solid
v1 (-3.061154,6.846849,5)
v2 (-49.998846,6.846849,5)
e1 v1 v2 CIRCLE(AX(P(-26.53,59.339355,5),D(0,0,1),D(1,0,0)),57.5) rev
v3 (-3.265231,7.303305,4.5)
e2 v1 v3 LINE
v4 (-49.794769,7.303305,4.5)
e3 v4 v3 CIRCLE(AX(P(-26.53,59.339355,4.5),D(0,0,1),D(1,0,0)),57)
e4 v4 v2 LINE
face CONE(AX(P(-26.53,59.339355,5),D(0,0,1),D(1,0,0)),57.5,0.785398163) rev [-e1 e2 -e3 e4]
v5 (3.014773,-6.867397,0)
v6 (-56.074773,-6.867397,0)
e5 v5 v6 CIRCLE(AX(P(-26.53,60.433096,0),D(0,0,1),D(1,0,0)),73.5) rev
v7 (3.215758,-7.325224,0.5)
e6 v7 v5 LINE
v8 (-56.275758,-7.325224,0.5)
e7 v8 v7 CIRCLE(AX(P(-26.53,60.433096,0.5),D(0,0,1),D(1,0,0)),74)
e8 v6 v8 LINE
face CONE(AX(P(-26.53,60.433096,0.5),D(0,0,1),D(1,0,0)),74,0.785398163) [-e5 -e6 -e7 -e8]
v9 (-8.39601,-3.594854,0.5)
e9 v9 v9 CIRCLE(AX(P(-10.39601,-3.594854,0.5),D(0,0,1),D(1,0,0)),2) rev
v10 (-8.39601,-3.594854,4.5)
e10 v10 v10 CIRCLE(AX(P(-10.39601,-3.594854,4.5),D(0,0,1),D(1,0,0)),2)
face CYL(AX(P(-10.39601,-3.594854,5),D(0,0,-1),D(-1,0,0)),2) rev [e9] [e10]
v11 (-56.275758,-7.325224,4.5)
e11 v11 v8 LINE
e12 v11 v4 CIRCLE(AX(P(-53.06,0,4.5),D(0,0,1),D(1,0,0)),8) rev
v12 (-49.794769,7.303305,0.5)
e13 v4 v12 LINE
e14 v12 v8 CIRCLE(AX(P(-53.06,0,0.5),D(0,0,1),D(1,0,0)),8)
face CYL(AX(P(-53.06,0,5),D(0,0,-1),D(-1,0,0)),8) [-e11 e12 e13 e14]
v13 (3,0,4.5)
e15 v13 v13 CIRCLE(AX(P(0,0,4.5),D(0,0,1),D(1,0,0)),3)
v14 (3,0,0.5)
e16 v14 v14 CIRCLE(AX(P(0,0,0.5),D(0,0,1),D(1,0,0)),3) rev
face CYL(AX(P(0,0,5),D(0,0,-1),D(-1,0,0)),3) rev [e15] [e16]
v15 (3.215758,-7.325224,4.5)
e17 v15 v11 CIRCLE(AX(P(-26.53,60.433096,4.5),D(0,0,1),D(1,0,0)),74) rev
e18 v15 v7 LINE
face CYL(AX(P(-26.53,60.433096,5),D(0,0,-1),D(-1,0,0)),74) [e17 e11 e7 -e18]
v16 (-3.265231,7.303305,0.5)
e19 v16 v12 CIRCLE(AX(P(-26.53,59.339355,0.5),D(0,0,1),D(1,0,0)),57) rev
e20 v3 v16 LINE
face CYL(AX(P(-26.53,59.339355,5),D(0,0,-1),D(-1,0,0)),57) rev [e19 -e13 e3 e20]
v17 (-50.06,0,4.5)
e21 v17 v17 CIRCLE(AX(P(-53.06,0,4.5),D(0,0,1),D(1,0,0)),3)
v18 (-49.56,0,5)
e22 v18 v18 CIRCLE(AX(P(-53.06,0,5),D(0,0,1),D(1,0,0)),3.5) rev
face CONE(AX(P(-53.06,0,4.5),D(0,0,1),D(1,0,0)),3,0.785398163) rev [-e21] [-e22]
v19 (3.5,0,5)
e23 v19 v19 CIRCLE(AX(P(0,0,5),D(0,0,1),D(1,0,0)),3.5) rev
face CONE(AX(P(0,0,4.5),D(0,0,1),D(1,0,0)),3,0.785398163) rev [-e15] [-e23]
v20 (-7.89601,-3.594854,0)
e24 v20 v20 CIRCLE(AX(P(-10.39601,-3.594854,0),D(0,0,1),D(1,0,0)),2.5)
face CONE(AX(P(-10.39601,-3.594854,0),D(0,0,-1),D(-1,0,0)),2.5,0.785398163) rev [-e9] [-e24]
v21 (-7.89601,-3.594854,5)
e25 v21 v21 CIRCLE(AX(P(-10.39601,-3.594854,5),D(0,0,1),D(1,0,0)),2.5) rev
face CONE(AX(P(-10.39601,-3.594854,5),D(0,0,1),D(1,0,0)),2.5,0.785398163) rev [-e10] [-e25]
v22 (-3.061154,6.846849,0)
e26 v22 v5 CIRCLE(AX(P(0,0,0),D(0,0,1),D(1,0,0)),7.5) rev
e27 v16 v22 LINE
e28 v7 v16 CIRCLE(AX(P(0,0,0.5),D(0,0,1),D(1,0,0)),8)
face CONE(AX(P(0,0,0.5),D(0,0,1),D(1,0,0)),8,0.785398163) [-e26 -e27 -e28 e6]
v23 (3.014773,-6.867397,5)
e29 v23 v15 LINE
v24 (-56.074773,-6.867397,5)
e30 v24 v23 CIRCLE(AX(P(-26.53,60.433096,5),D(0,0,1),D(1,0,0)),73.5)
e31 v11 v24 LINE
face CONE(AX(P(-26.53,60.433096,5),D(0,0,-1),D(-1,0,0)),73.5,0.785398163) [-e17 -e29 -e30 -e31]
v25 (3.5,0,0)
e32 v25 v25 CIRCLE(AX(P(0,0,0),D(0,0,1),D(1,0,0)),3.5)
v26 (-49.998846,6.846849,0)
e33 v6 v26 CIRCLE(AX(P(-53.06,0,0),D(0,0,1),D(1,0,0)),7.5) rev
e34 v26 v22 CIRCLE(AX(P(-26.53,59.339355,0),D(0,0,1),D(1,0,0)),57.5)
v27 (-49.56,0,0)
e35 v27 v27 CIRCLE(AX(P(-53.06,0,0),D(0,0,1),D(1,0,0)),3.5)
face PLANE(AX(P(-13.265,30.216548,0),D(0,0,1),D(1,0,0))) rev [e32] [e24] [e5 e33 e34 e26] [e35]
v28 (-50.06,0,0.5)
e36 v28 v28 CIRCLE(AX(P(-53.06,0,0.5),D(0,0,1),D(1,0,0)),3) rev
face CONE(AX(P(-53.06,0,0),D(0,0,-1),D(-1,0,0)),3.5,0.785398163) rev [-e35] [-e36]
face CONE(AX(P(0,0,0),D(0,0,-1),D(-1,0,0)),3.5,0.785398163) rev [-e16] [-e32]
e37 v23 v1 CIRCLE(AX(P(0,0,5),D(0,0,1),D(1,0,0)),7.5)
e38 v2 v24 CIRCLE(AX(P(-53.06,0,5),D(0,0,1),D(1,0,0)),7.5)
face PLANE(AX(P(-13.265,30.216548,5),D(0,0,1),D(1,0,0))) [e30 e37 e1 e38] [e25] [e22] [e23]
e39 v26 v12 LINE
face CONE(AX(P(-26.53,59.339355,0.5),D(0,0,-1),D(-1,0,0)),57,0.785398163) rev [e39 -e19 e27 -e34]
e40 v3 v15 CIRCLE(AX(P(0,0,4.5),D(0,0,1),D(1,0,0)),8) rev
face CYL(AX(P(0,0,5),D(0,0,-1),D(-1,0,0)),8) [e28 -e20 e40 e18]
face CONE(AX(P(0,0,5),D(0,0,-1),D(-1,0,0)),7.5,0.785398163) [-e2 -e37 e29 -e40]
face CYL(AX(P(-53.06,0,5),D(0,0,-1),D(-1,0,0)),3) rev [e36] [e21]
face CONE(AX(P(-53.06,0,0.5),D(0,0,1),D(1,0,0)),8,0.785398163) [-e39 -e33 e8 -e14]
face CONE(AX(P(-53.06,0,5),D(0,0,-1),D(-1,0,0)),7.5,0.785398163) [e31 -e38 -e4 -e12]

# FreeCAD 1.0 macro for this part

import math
import FreeCAD as App
import Part
import Sketcher


def edges_at(feature, points):
    """Names of the edges that pass closest to the given points."""
    edges = feature.Shape.Edges
    near = lambda p: min(range(len(edges)), key=lambda i: edges[i].distToShape(Part.Vertex(*p))[0])
    return sorted({f"Edge{near(p) + 1}" for p in points})

doc = App.newDocument("Part")
body = doc.addObject("PartDesign::Body", "Body")

# Sketch on XY plane
sketch1 = doc.addObject("Sketcher::SketchObject", "Sketch")
body.addObject(sketch1)
sketch1.AttachmentSupport = (doc.XY_Plane, [""])
sketch1.MapMode = "FlatFace"
sketch1.addGeometry(Part.ArcOfCircle(Part.Circle(App.Vector(-53.1, 0, 0), App.Vector(0, 0, 1), 8), math.radians(66), math.radians(246)), False)
sketch1.addGeometry(Part.ArcOfCircle(Part.Circle(App.Vector(-26.5, 60.4, 0), App.Vector(0, 0, 1), 74), math.radians(-114), math.radians(-66)), False)
sketch1.addGeometry(Part.ArcOfCircle(Part.Circle(App.Vector(0, 0, 0), App.Vector(0, 0, 1), 8), math.radians(-66), math.radians(114)), False)
sketch1.addGeometry(Part.ArcOfCircle(Part.Circle(App.Vector(-26.5, 59.3, 0), App.Vector(0, 0, 1), 57), math.radians(-114), math.radians(-66)), False)
sketch1.addGeometry(Part.Circle(App.Vector(0, 0, 0), App.Vector(0, 0, 1), 3), False)
sketch1.addGeometry(Part.Circle(App.Vector(-53.1, 0, 0), App.Vector(0, 0, 1), 3), False)
sketch1.addConstraint(Sketcher.Constraint("Tangent", 0, 2, 1, 1))
sketch1.addConstraint(Sketcher.Constraint("Tangent", 1, 2, 2, 1))
sketch1.addConstraint(Sketcher.Constraint("Tangent", 2, 2, 3, 2))
sketch1.addConstraint(Sketcher.Constraint("Tangent", 3, 1, 0, 1))
sketch1.addConstraint(Sketcher.Constraint("Coincident", 2, 3, -1, 1))
sketch1.addConstraint(Sketcher.Constraint("Coincident", 4, 3, -1, 1))
sketch1.addConstraint(Sketcher.Constraint("Coincident", 5, 3, 0, 3))
sketch1.addConstraint(Sketcher.Constraint("Equal", 0, 2))
sketch1.addConstraint(Sketcher.Constraint("Equal", 4, 5))
sketch1.addConstraint(Sketcher.Constraint("PointOnObject", 0, 3, -1))
sketch1.addConstraint(Sketcher.Constraint("Diameter", 4, 6.0))
sketch1.addConstraint(Sketcher.Constraint("Radius", 0, 8.0))
sketch1.addConstraint(Sketcher.Constraint("Radius", 1, 74.0))
sketch1.addConstraint(Sketcher.Constraint("Radius", 3, 57.0))
sketch1.addConstraint(Sketcher.Constraint("DistanceX", 0, 3, -1, 1, 53.06))
pad1 = doc.addObject("PartDesign::Pad", "Pad")
body.addObject(pad1)
pad1.Profile = sketch1
pad1.Length = 5
doc.recompute()

chamfer = doc.addObject("PartDesign::Chamfer", "Chamfer")
body.addObject(chamfer)
chamfer.Base = (pad1, edges_at(pad1, [
    (-3, 0, 0),
    (-3, 0, 5),
    (-26.53, 2.339, 5),
    (-56.06, 0, 0),
    (-56.06, 0, 5),
    (-60.374, 3.241, 5),
    (-26.53, -13.567, 5),
    (-60.374, 3.241, 0),
    (-26.53, 2.339, 0),
    (7.314, 3.241, 0),
    (-26.53, -13.567, 0),
    (7.314, 3.241, 5),
]))
chamfer.Size = 0.5

# Sketch on XY plane
sketch2 = doc.addObject("Sketcher::SketchObject", "Sketch001")
body.addObject(sketch2)
sketch2.AttachmentSupport = (doc.XY_Plane, [""])
sketch2.MapMode = "FlatFace"
sketch2.addGeometry(Part.Circle(App.Vector(-10.4, -3.6, 0), App.Vector(0, 0, 1), 2), False)
sketch2.addConstraint(Sketcher.Constraint("Diameter", 0, 4.0))
sketch2.addConstraint(Sketcher.Constraint("DistanceX", 0, 3, -1, 1, 10.39601))
sketch2.addConstraint(Sketcher.Constraint("DistanceY", 0, 3, -1, 1, 3.594854))
pocket1 = doc.addObject("PartDesign::Pocket", "Pocket")
body.addObject(pocket1)
pocket1.Profile = sketch2
pocket1.Type = "ThroughAll"
pocket1.Midplane = True
doc.recompute()

chamfer2 = doc.addObject("PartDesign::Chamfer", "Chamfer001")
body.addObject(chamfer2)
chamfer2.Base = (pocket1, edges_at(pocket1, [(-8.396, -3.595, 5), (-8.396, -3.595, 0)]))
chamfer2.Size = 0.5

doc.recompute()
